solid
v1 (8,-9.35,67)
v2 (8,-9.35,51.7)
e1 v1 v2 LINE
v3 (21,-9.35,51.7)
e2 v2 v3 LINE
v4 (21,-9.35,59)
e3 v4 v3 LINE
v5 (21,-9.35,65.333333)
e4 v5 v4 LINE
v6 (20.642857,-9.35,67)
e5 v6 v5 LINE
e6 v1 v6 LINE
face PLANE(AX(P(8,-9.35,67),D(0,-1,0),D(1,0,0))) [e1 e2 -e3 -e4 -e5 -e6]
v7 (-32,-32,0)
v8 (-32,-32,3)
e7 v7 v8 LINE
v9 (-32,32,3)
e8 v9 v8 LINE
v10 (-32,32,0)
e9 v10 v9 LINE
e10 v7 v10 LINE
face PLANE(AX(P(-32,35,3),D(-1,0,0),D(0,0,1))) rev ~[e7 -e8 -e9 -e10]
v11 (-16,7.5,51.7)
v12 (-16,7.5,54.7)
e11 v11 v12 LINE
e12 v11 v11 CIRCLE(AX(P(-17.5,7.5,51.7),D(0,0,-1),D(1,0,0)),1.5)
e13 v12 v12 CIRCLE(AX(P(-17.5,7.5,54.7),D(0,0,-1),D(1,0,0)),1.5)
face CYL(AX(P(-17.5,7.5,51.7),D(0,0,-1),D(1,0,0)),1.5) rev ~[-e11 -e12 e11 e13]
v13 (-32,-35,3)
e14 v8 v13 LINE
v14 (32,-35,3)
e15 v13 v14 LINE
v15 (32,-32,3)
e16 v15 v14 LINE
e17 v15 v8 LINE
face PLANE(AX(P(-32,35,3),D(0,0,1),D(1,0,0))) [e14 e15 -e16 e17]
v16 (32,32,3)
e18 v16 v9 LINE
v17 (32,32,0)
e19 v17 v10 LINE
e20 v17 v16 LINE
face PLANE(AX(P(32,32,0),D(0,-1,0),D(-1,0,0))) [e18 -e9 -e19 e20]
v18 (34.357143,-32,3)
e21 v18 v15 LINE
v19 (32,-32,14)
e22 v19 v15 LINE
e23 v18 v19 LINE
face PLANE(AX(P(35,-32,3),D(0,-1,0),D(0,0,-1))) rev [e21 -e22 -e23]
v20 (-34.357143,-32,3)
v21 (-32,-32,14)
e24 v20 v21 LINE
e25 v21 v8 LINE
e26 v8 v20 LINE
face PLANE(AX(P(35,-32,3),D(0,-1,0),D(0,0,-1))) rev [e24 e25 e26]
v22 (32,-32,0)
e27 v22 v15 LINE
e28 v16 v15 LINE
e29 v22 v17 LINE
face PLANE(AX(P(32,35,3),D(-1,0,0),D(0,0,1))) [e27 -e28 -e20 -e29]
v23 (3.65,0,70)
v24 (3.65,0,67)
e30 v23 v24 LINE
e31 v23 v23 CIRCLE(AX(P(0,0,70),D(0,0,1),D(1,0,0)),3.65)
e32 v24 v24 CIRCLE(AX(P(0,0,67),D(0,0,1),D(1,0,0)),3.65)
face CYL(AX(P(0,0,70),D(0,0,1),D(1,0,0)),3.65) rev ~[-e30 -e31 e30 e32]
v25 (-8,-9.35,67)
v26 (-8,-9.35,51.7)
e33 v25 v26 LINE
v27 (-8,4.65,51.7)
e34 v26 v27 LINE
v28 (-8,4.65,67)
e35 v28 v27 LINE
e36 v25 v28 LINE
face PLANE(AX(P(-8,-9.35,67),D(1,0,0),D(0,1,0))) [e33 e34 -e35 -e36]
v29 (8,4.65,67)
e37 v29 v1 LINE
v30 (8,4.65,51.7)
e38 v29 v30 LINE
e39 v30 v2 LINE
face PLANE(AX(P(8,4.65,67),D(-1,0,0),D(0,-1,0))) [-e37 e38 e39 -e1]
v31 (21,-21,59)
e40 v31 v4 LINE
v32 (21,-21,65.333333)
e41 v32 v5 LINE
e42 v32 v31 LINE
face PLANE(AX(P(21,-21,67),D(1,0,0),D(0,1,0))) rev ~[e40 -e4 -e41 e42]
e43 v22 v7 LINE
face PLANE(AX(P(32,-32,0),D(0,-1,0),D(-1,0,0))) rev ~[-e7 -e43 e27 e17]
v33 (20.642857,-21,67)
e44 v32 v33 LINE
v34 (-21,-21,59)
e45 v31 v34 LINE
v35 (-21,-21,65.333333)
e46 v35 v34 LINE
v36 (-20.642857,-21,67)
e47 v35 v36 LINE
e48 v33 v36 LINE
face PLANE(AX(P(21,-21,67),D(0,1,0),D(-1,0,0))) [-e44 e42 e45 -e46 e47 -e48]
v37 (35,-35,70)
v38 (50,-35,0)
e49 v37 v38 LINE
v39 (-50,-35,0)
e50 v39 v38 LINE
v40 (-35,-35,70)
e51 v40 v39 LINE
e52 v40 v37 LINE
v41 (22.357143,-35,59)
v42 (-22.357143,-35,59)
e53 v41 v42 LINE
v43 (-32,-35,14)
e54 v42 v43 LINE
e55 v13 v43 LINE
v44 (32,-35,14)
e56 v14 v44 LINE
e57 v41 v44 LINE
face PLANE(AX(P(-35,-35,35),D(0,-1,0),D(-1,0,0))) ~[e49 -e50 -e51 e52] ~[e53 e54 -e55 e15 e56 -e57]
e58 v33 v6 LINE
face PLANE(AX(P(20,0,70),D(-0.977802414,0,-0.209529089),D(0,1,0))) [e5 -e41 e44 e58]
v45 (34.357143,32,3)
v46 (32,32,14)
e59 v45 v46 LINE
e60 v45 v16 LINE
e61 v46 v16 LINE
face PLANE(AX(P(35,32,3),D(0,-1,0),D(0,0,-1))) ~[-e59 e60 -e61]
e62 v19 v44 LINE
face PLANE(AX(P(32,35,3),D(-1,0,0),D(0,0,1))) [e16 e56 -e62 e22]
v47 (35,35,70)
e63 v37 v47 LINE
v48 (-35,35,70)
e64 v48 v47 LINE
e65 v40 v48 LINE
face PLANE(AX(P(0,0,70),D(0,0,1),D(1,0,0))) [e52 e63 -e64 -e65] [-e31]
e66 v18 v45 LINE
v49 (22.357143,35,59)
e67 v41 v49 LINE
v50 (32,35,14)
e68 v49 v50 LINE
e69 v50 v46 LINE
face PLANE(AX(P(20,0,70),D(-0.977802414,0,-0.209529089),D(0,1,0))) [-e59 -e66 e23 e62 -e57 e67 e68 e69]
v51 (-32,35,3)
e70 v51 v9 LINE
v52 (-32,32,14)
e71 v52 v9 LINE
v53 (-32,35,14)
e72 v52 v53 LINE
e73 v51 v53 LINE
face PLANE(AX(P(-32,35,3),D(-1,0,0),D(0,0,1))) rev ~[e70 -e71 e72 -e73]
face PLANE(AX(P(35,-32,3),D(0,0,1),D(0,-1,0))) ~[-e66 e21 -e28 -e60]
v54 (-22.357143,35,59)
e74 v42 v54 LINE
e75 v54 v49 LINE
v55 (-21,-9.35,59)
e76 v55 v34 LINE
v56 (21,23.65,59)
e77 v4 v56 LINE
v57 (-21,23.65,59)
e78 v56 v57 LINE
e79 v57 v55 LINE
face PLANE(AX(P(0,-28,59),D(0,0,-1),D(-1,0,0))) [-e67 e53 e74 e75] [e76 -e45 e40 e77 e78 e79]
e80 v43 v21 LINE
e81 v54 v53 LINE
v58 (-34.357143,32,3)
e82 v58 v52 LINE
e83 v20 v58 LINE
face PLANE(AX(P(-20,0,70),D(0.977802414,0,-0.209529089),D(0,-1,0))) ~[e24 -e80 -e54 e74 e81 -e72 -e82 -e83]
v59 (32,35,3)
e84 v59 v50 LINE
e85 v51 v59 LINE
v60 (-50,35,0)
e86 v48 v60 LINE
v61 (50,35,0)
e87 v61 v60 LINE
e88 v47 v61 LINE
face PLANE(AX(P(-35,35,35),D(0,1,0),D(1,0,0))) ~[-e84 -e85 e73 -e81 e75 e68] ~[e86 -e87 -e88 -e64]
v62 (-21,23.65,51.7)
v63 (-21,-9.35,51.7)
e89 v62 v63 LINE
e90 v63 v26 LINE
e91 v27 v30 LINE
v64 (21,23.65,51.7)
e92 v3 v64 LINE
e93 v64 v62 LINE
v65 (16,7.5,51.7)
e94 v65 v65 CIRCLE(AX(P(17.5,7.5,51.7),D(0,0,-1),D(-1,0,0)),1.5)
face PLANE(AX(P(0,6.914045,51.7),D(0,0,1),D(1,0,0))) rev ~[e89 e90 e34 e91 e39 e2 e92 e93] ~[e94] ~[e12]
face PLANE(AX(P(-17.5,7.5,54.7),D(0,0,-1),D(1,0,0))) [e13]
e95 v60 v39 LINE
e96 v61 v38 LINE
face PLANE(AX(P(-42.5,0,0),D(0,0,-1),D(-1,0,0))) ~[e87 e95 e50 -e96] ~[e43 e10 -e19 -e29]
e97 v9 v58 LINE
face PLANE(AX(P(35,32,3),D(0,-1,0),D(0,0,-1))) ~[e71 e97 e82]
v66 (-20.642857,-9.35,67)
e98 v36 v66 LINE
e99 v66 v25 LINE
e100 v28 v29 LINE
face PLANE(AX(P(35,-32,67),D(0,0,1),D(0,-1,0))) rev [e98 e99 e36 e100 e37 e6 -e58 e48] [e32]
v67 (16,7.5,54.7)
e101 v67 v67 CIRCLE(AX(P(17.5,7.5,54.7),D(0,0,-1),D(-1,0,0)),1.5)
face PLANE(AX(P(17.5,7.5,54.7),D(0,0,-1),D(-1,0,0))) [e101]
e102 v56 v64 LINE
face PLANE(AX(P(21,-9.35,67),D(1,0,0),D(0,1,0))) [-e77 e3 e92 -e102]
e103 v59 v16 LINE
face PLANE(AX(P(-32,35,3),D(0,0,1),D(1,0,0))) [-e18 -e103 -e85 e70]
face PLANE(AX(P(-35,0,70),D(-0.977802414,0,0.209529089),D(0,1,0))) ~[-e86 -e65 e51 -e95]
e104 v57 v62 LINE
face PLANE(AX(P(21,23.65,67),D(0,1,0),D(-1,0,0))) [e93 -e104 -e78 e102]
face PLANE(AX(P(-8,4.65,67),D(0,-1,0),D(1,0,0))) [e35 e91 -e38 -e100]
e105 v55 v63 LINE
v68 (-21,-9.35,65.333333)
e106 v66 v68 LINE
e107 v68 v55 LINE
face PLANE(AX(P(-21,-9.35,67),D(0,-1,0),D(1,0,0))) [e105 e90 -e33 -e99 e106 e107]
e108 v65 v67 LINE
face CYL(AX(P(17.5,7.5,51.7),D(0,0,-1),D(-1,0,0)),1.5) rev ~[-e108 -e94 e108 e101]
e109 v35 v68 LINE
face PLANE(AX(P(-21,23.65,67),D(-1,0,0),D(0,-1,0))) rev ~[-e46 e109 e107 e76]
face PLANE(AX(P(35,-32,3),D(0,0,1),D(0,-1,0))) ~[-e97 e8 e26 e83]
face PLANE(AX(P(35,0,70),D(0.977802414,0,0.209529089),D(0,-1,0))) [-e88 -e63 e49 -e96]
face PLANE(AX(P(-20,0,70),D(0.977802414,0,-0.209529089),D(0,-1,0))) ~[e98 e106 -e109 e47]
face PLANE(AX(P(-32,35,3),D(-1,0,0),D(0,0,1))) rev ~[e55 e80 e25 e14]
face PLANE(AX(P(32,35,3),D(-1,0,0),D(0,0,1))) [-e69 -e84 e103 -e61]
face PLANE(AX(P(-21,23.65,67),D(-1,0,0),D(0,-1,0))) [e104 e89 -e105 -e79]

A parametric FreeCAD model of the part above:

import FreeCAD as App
import Part
import Sketcher

V = App.Vector


def add_polygon(sketch, points):
    """Adds a closed chain of lines whose ends are joined by coincident constraints."""
    first, n = sketch.GeometryCount, len(points)
    for a, b in zip(points, points[1:] + points[:1]):
        sketch.addGeometry(Part.LineSegment(App.Vector(*a, 0), App.Vector(*b, 0)), False)
    for i in range(n):
        sketch.addConstraint(Sketcher.Constraint("Coincident", first + i, 2, first + (i + 1) % n, 1))

doc = App.newDocument("Part")
body = doc.addObject("PartDesign::Body", "Body")

# Sketch on XY plane
sketch1 = body.newObject("Sketcher::SketchObject", "Sketch")
sketch1.AttachmentSupport = (doc.getObject("XY_Plane"), [""])
sketch1.MapMode = "FlatFace"
add_polygon(sketch1, [(-35, 35), (-35, -35), (35, -35), (35, 35)])  # lines 0-3
sketch1.addConstraint(Sketcher.Constraint("Vertical", 0))
sketch1.addConstraint(Sketcher.Constraint("Horizontal", 1))
sketch1.addConstraint(Sketcher.Constraint("Vertical", 2))
sketch1.addConstraint(Sketcher.Constraint("Horizontal", 3))
sketch1.addConstraint(Sketcher.Constraint("Symmetric", 0, 2, 2, 2, -1, 1))
sketch1.addConstraint(Sketcher.Constraint("Equal", 3, 0))
sketch1.addConstraint(Sketcher.Constraint("DistanceX", 1, 1, 1, 2, 70.0))
pad1 = body.newObject("PartDesign::Pad", "Pad")
pad1.Profile = sketch1
pad1.Length = 70

# Sketch on XY plane
sketch2 = body.newObject("Sketcher::SketchObject", "Sketch001")
sketch2.AttachmentSupport = (doc.getObject("XY_Plane"), [""])
sketch2.MapMode = "FlatFace"
add_polygon(sketch2, [(32, 32), (32, -32), (-32, -32), (-32, 32)])  # lines 0-3
sketch2.addConstraint(Sketcher.Constraint("Vertical", 0))
sketch2.addConstraint(Sketcher.Constraint("Horizontal", 1))
sketch2.addConstraint(Sketcher.Constraint("Vertical", 2))
sketch2.addConstraint(Sketcher.Constraint("Horizontal", 3))
sketch2.addConstraint(Sketcher.Constraint("Symmetric", 0, 2, 2, 2, -1, 1))
sketch2.addConstraint(Sketcher.Constraint("Equal", 3, 0))
sketch2.addConstraint(Sketcher.Constraint("DistanceX", 1, 2, 1, 1, 64.0))
pocket1 = body.newObject("PartDesign::Pocket", "Pocket")
pocket1.Profile = sketch2
pocket1.Length = 67
pocket1.Reversed = True

# Sketch on XY plane
sketch3 = body.newObject("Sketcher::SketchObject", "Sketch002")
sketch3.AttachmentSupport = (doc.getObject("XY_Plane"), [""])
sketch3.MapMode = "FlatFace"
sketch3.AttachmentOffset = App.Placement(V(0, 0, 70), App.Rotation())
sketch3.addGeometry(Part.Circle(V(0, 0, 0), V(0, 0, 1), 3.65), False)
sketch3.addConstraint(Sketcher.Constraint("Coincident", 0, 3, -1, 1))
sketch3.addConstraint(Sketcher.Constraint("Diameter", 0, 7.3))
pocket2 = body.newObject("PartDesign::Pocket", "Pocket001")
pocket2.Profile = sketch3
pocket2.Type = "UpToFirst"

# Sketch on XZ plane
sketch4 = body.newObject("Sketcher::SketchObject", "Sketch003")
sketch4.AttachmentSupport = (doc.getObject("XZ_Plane"), [""])
sketch4.MapMode = "FlatFace"
sketch4.AttachmentOffset = App.Placement(V(0, 0, -35), App.Rotation())
add_polygon(sketch4, [(-32, 67), (-32, 3), (32, 3), (32, 67)])  # lines 0-3
sketch4.addConstraint(Sketcher.Constraint("Vertical", 0))
sketch4.addConstraint(Sketcher.Constraint("Horizontal", 1))
sketch4.addConstraint(Sketcher.Constraint("Vertical", 2))
sketch4.addConstraint(Sketcher.Constraint("Horizontal", 3))
sketch4.addConstraint(Sketcher.Constraint("Equal", 3, 0))
sketch4.addConstraint(Sketcher.Constraint("DistanceX", 1, 1, 1, 2, 64.0))
sketch4.addConstraint(Sketcher.Constraint("DistanceX", 0, 2, -1, 1, 32.0))
sketch4.addConstraint(Sketcher.Constraint("DistanceY", -1, 1, 0, 2, 3.0))
pocket3 = body.newObject("PartDesign::Pocket", "Pocket002")
pocket3.Profile = sketch4
pocket3.Length = 70
pocket3.Reversed = True
doc.recompute()

datumplane = body.newObject("PartDesign::Plane", "DatumPlane")
datumplane.Placement = App.Placement(V(0, 0, 0), App.Rotation(V(0.707106781, 0.707106781, 0), V(0, 0, -1), V(-0.707106781, 0.707106781, 0), "ZXY"))
mirrored = body.newObject("PartDesign::Mirrored", "Mirrored")
mirrored.Originals = [pocket3]
mirrored.MirrorPlane = (datumplane, [""])
body.Tip = mirrored
doc.recompute()

datumplane2 = body.newObject("PartDesign::Plane", "DatumPlane001")
datumplane2.Placement = App.Placement(V(0, 0, 0), App.Rotation(V(0.707106781, 0.707106781, 0), V(0, 0, -1), V(-0.707106781, 0.707106781, 0), "ZXY"))
mirrored2 = body.newObject("PartDesign::Mirrored", "Mirrored001")
mirrored2.Originals = [pocket3]
mirrored2.MirrorPlane = (datumplane2, [""])
body.Tip = mirrored2

# Sketch on XZ plane
sketch5 = body.newObject("Sketcher::SketchObject", "Sketch004")
sketch5.AttachmentSupport = (doc.getObject("XZ_Plane"), [""])
sketch5.MapMode = "FlatFace"
sketch5.AttachmentOffset = App.Placement(V(0, 0, -35), App.Rotation())
add_polygon(sketch5, [(-32, 67), (-32, 3), (32, 3), (32, 67)])  # lines 0-3
sketch5.addConstraint(Sketcher.Constraint("Vertical", 0))
sketch5.addConstraint(Sketcher.Constraint("Horizontal", 1))
sketch5.addConstraint(Sketcher.Constraint("Vertical", 2))
sketch5.addConstraint(Sketcher.Constraint("Horizontal", 3))
sketch5.addConstraint(Sketcher.Constraint("Equal", 3, 0))
sketch5.addConstraint(Sketcher.Constraint("DistanceX", 1, 1, 1, 2, 64.0))
sketch5.addConstraint(Sketcher.Constraint("DistanceX", 0, 2, -1, 1, 32.0))
sketch5.addConstraint(Sketcher.Constraint("DistanceY", -1, 1, 0, 2, 3.0))
pocket4 = body.newObject("PartDesign::Pocket", "Pocket003")
pocket4.Profile = sketch5
pocket4.Length = 70
pocket4.Reversed = True

# Sketch on XY plane
sketch6 = body.newObject("Sketcher::SketchObject", "Sketch005")
sketch6.AttachmentSupport = (doc.getObject("XY_Plane"), [""])
sketch6.MapMode = "FlatFace"
sketch6.AttachmentOffset = App.Placement(V(0, 0, 67), App.Rotation())
add_polygon(sketch6, [(-21, 23.65), (21, 23.65), (21, -9.35), (8, -9.35), (8, 4.65), (-8, 4.65), (-8, -9.35), (-21, -9.35)])  # lines 0-7
sketch6.addConstraint(Sketcher.Constraint("Horizontal", 0))
sketch6.addConstraint(Sketcher.Constraint("Vertical", 1))
sketch6.addConstraint(Sketcher.Constraint("Horizontal", 2))
sketch6.addConstraint(Sketcher.Constraint("Vertical", 3))
sketch6.addConstraint(Sketcher.Constraint("Horizontal", 4))
sketch6.addConstraint(Sketcher.Constraint("Vertical", 5))
sketch6.addConstraint(Sketcher.Constraint("Horizontal", 6))
sketch6.addConstraint(Sketcher.Constraint("Vertical", 7))
sketch6.addConstraint(Sketcher.Constraint("Symmetric", 2, 2, 5, 2, -2))
sketch6.addConstraint(Sketcher.Constraint("Equal", 2, 6))
sketch6.addConstraint(Sketcher.Constraint("DistanceX", 0, 1, 0, 2, 42.0))
sketch6.addConstraint(Sketcher.Constraint("DistanceX", 2, 2, 2, 1, 13.0))
sketch6.addConstraint(Sketcher.Constraint("DistanceY", 1, 2, 1, 1, 33.0))
sketch6.addConstraint(Sketcher.Constraint("DistanceY", 3, 1, 3, 2, 14.0))
sketch6.addConstraint(Sketcher.Constraint("DistanceY", -1, 1, 0, 2, 23.65))
pad2 = body.newObject("PartDesign::Pad", "Pad001")
pad2.Profile = sketch6
pad2.Length = 15.3
pad2.Reversed = True

# Sketch on XY plane
sketch7 = body.newObject("Sketcher::SketchObject", "Sketch006")
sketch7.AttachmentSupport = (doc.getObject("XY_Plane"), [""])
sketch7.MapMode = "FlatFace"
sketch7.AttachmentOffset = App.Placement(V(0, 0, 51.7), App.Rotation())
sketch7.addGeometry(Part.Circle(V(17.5, 7.5, 0), V(0, 0, 1), 1.5), False)
sketch7.addGeometry(Part.Circle(V(-17.5, 7.5, 0), V(0, 0, 1), 1.5), False)
sketch7.addConstraint(Sketcher.Constraint("Equal", 0, 1))
sketch7.addConstraint(Sketcher.Constraint("Symmetric", 0, 3, 1, 3, -2))
sketch7.addConstraint(Sketcher.Constraint("Diameter", 0, 3.0))
sketch7.addConstraint(Sketcher.Constraint("DistanceX", 1, 3, 0, 3, 35.0))
sketch7.addConstraint(Sketcher.Constraint("DistanceY", -1, 1, 0, 3, 7.5))
pocket5 = body.newObject("PartDesign::Pocket", "Pocket004")
pocket5.Profile = sketch7
pocket5.Length = 3
pocket5.Reversed = True

# Sketch on XY plane
sketch8 = body.newObject("Sketcher::SketchObject", "Sketch007")
sketch8.AttachmentSupport = (doc.getObject("XY_Plane"), [""])
sketch8.MapMode = "FlatFace"
sketch8.AttachmentOffset = App.Placement(V(0, 0, 67), App.Rotation())
add_polygon(sketch8, [(-32, -35), (-32, -32), (-35, -32), (-35, 32), (-32, 32), (-32, 35), (32, 35), (32, 32), (35, 32), (35, -32), (32, -32), (32, -35)])  # lines 0-11
add_polygon(sketch8, [(21, 23.65), (-21, 23.65), (-21, -21), (21, -21)])  # lines 12-15
sketch8.addConstraint(Sketcher.Constraint("Vertical", 0))
sketch8.addConstraint(Sketcher.Constraint("Horizontal", 1))
sketch8.addConstraint(Sketcher.Constraint("Vertical", 2))
sketch8.addConstraint(Sketcher.Constraint("Horizontal", 3))
sketch8.addConstraint(Sketcher.Constraint("Vertical", 4))
sketch8.addConstraint(Sketcher.Constraint("Horizontal", 5))
sketch8.addConstraint(Sketcher.Constraint("Vertical", 6))
sketch8.addConstraint(Sketcher.Constraint("Horizontal", 7))
sketch8.addConstraint(Sketcher.Constraint("Vertical", 8))
sketch8.addConstraint(Sketcher.Constraint("Horizontal", 9))
sketch8.addConstraint(Sketcher.Constraint("Vertical", 10))
sketch8.addConstraint(Sketcher.Constraint("Horizontal", 11))
sketch8.addConstraint(Sketcher.Constraint("Horizontal", 12))
sketch8.addConstraint(Sketcher.Constraint("Vertical", 13))
sketch8.addConstraint(Sketcher.Constraint("Horizontal", 14))
sketch8.addConstraint(Sketcher.Constraint("Vertical", 15))
sketch8.addConstraint(Sketcher.Constraint("Symmetric", 0, 2, 6, 2, -1, 1))
sketch8.addConstraint(Sketcher.Constraint("Symmetric", 2, 2, 8, 2, -1, 1))
sketch8.addConstraint(Sketcher.Constraint("Symmetric", 4, 2, 10, 2, -1, 1))
sketch8.addConstraint(Sketcher.Constraint("Symmetric", 3, 2, 6, 2, -2))
sketch8.addConstraint(Sketcher.Constraint("Equal", 9, 0))
sketch8.addConstraint(Sketcher.Constraint("Equal", 11, 2))
sketch8.addConstraint(Sketcher.Constraint("DistanceX", 1, 2, 1, 1, 3.0))
sketch8.addConstraint(Sketcher.Constraint("DistanceX", 5, 1, 5, 2, 64.0))
sketch8.addConstraint(Sketcher.Constraint("DistanceX", 12, 2, 12, 1, 42.0))
sketch8.addConstraint(Sketcher.Constraint("DistanceX", 12, 2, -1, 1, 21.0))
sketch8.addConstraint(Sketcher.Constraint("DistanceY", 13, 2, -1, 1, 21.0))
sketch8.addConstraint(Sketcher.Constraint("DistanceY", 13, 2, 13, 1, 44.65))
pad3 = body.newObject("PartDesign::Pad", "Pad002")
pad3.Profile = sketch8
pad3.Length = 8
pad3.Reversed = True

# Sketch on XY plane
sketch9 = body.newObject("Sketcher::SketchObject", "Sketch008")
sketch9.AttachmentSupport = (doc.getObject("XY_Plane"), [""])
sketch9.MapMode = "FlatFace"
add_polygon(sketch9, [(50, 35), (50, -35), (35, -35), (35, 35)])  # lines 0-3
sketch9.addConstraint(Sketcher.Constraint("Vertical", 0))
sketch9.addConstraint(Sketcher.Constraint("Horizontal", 1))
sketch9.addConstraint(Sketcher.Constraint("Vertical", 2))
sketch9.addConstraint(Sketcher.Constraint("Horizontal", 3))
sketch9.addConstraint(Sketcher.Constraint("DistanceX", 1, 2, 1, 1, 15.0))
sketch9.addConstraint(Sketcher.Constraint("DistanceY", 0, 2, 0, 1, 70.0))
sketch9.addConstraint(Sketcher.Constraint("DistanceX", -1, 1, 0, 2, 50.0))
sketch9.addConstraint(Sketcher.Constraint("DistanceY", 0, 2, -1, 1, 35.0))

# Sketch on an angled plane
sketch10 = body.newObject("Sketcher::SketchObject", "Sketch009")
sketch10.Placement = App.Placement(V(47.804878, 0, 10.243902), App.Rotation(V(0.209529089, 0, -0.977802414), V(0, 1, 0), V(0.977802414, 0, 0.209529089), "ZXY"))
sketch10.addGeometry(Part.LineSegment(V(-61.112651, -35, 0), V(10.476454, -35, 0)), False)
sketch10.addConstraint(Sketcher.Constraint("Horizontal", 0))
sketch10.addConstraint(Sketcher.Constraint("DistanceY", 0, 1, -1, 1, 35.0))
sketch10.addConstraint(Sketcher.Constraint("DistanceX", 0, 1, 0, 2, 71.589105))
sketch10.addConstraint(Sketcher.Constraint("DistanceX", 0, 1, -1, 1, 61.112651))
doc.recompute()

additivepipe = body.newObject("PartDesign::AdditivePipe", "AdditivePipe")
additivepipe.Profile = sketch9
additivepipe.Spine = (sketch10, ["Edge1"])
doc.recompute()

mirrored3 = body.newObject("PartDesign::Mirrored", "Mirrored002")
mirrored3.Originals = [additivepipe]
mirrored3.MirrorPlane = (doc.getObject("YZ_Plane"), [""])
body.Tip = mirrored3

doc.recompute()
